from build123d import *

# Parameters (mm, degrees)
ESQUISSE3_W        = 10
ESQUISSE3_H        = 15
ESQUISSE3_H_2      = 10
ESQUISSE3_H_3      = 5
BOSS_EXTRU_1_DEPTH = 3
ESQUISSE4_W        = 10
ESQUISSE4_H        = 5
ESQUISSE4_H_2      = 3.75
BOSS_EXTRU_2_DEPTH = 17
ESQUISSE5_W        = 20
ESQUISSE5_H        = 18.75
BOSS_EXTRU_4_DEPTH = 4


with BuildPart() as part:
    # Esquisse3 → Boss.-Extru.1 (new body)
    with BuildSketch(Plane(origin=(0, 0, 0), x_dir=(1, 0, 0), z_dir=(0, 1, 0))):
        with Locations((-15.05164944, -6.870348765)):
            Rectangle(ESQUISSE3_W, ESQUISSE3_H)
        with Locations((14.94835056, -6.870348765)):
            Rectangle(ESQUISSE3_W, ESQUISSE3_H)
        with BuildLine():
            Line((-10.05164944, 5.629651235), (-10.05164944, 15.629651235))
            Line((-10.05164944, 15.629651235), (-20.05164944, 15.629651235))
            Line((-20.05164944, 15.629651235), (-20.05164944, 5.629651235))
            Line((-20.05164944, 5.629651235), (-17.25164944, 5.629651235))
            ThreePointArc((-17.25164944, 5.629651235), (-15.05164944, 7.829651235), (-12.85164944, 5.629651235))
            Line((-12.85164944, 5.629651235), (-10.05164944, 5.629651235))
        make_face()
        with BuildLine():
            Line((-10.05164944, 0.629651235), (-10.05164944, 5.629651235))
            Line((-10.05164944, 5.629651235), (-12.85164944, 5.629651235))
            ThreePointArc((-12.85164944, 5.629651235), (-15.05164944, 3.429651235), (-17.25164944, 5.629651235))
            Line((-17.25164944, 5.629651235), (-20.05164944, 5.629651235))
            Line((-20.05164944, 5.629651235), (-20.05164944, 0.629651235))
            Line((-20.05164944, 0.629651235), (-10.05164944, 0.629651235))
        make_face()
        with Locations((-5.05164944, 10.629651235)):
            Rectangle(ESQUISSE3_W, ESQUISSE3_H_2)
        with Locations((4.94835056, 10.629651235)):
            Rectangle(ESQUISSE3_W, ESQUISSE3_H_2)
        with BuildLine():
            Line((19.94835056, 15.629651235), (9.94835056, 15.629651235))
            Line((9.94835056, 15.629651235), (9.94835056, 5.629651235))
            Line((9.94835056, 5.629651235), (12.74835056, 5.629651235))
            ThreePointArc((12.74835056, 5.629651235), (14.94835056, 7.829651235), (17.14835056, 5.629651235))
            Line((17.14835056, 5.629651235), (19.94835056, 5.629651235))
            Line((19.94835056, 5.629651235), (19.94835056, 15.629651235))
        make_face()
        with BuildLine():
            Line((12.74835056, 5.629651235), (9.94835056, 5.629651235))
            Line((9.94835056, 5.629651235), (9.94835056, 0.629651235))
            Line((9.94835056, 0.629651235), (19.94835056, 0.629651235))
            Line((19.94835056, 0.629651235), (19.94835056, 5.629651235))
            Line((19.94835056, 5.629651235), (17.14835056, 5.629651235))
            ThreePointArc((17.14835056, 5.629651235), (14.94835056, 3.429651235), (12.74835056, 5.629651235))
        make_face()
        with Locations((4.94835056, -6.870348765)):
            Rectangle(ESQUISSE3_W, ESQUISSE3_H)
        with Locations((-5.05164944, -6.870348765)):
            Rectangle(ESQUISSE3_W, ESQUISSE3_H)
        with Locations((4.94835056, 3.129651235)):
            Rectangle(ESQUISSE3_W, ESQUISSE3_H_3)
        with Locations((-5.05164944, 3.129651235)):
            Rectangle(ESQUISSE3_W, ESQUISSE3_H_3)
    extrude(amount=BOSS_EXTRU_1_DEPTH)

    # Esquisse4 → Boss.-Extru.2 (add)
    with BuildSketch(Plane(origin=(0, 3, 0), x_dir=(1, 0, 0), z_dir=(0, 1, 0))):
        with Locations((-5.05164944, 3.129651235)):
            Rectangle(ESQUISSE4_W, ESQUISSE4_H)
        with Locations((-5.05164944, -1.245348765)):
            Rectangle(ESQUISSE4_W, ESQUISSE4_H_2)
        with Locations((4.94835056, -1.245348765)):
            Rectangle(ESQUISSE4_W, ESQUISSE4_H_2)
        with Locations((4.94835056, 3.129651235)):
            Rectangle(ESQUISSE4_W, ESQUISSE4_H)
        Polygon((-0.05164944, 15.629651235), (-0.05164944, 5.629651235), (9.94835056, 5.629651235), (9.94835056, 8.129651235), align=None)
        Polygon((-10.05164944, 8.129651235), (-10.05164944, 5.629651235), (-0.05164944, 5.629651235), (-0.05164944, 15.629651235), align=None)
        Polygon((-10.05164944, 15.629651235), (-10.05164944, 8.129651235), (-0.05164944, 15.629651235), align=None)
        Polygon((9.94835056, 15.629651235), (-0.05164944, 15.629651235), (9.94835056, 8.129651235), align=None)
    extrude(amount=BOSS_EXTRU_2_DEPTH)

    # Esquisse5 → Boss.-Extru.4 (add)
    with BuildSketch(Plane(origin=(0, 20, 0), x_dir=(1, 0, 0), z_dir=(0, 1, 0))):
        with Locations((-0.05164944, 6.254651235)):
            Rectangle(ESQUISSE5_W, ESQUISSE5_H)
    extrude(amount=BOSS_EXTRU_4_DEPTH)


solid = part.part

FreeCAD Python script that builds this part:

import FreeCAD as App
import Part
import Sketcher

V = App.Vector

doc = App.newDocument("Part")
body = doc.addObject("PartDesign::Body", "Body")

sketch1 = body.newObject("Sketcher::SketchObject", "Sketch")
sketch1.AttachmentSupport = (doc.getObject("XZ_Plane"), [""])
sketch1.MapMode = "FlatFace"
sketch1.addGeometry(Part.LineSegment(V(-20.1, 14.4, 0), V(19.9, 14.4, 0)), False)
sketch1.addGeometry(Part.LineSegment(V(19.9, 14.4, 0), V(19.9, -15.6, 0)), False)
sketch1.addGeometry(Part.LineSegment(V(19.9, -15.6, 0), V(-20.1, -15.6, 0)), False)
sketch1.addGeometry(Part.LineSegment(V(-20.1, -15.6, 0), V(-20.1, 14.4, 0)), False)
sketch1.addGeometry(Part.Circle(V(14.9, -5.6, 0), V(0, 0, 1), 2.2), False)
sketch1.addGeometry(Part.Circle(V(-15.1, -5.6, 0), V(0, 0, 1), 2.2), False)
sketch1.addConstraint(Sketcher.Constraint("Coincident", 0, 2, 1, 1))
sketch1.addConstraint(Sketcher.Constraint("Coincident", 1, 2, 2, 1))
sketch1.addConstraint(Sketcher.Constraint("Coincident", 2, 2, 3, 1))
sketch1.addConstraint(Sketcher.Constraint("Coincident", 3, 2, 0, 1))
sketch1.addConstraint(Sketcher.Constraint("Horizontal", 0))
sketch1.addConstraint(Sketcher.Constraint("Vertical", 1))
sketch1.addConstraint(Sketcher.Constraint("Horizontal", 2))
sketch1.addConstraint(Sketcher.Constraint("Vertical", 3))
sketch1.addConstraint(Sketcher.Constraint("Equal", 4, 5))
sketch1.addConstraint(Sketcher.Constraint("Horizontal", 4, 3, 5, 3))
sketch1.addConstraint(Sketcher.Constraint("Diameter", 4, 4.4))
sketch1.addConstraint(Sketcher.Constraint("DistanceX", 0, 1, 0, 2, 40.0))
sketch1.addConstraint(Sketcher.Constraint("DistanceY", 1, 2, 1, 1, 30.0))
sketch1.addConstraint(Sketcher.Constraint("DistanceX", 5, 3, 4, 3, 30.0))
sketch1.addConstraint(Sketcher.Constraint("DistanceX", 4, 3, 0, 2, 5.0))
sketch1.addConstraint(Sketcher.Constraint("DistanceY", 4, 3, 0, 2, 20.0))
sketch1.addConstraint(Sketcher.Constraint("DistanceX", -1, 1, 4, 3, 14.948351))
sketch1.addConstraint(Sketcher.Constraint("DistanceY", 4, 3, -1, 1, 5.629651))
pad1 = body.newObject("PartDesign::Pad", "Pad")
pad1.Profile = sketch1
pad1.Length = 3
pad1.Reversed = True

sketch2 = body.newObject("Sketcher::SketchObject", "Sketch001")
sketch2.AttachmentSupport = (doc.getObject("XZ_Plane"), [""])
sketch2.MapMode = "FlatFace"
sketch2.AttachmentOffset = App.Placement(V(0, 0, -3), App.Rotation())
sketch2.addGeometry(Part.LineSegment(V(-10, 3, 0), V(10, 3, 0)), False)
sketch2.addGeometry(Part.LineSegment(V(10, 3, 0), V(10, -16, 0)), False)
sketch2.addGeometry(Part.LineSegment(V(10, -16, 0), V(-10, -16, 0)), False)
sketch2.addGeometry(Part.LineSegment(V(-10, -16, 0), V(-10, 3, 0)), False)
sketch2.addConstraint(Sketcher.Constraint("Coincident", 0, 2, 1, 1))
sketch2.addConstraint(Sketcher.Constraint("Coincident", 1, 2, 2, 1))
sketch2.addConstraint(Sketcher.Constraint("Coincident", 2, 2, 3, 1))
sketch2.addConstraint(Sketcher.Constraint("Coincident", 3, 2, 0, 1))
sketch2.addConstraint(Sketcher.Constraint("Horizontal", 0))
sketch2.addConstraint(Sketcher.Constraint("Vertical", 1))
sketch2.addConstraint(Sketcher.Constraint("Horizontal", 2))
sketch2.addConstraint(Sketcher.Constraint("Vertical", 3))
sketch2.addConstraint(Sketcher.Constraint("DistanceX", 0, 1, 0, 2, 20.0))
sketch2.addConstraint(Sketcher.Constraint("DistanceY", 1, 2, 1, 1, 18.75))
sketch2.addConstraint(Sketcher.Constraint("DistanceX", -1, 1, 0, 2, 9.948351))
sketch2.addConstraint(Sketcher.Constraint("DistanceY", -1, 1, 0, 2, 3.120349))
pad2 = body.newObject("PartDesign::Pad", "Pad001")
pad2.Profile = sketch2
pad2.Length = 17
pad2.Reversed = True

sketch3 = body.newObject("Sketcher::SketchObject", "Sketch002")
sketch3.AttachmentSupport = (doc.getObject("XZ_Plane"), [""])
sketch3.MapMode = "FlatFace"
sketch3.AttachmentOffset = App.Placement(V(0, 0, -20), App.Rotation())
sketch3.addGeometry(Part.LineSegment(V(-10, -16, 0), V(-10, 3, 0)), False)
sketch3.addGeometry(Part.LineSegment(V(-10, 3, 0), V(10, 3, 0)), False)
sketch3.addGeometry(Part.LineSegment(V(10, 3, 0), V(10, -16, 0)), False)
sketch3.addGeometry(Part.LineSegment(V(10, -16, 0), V(-10, -16, 0)), False)
sketch3.addConstraint(Sketcher.Constraint("Coincident", 0, 2, 1, 1))
sketch3.addConstraint(Sketcher.Constraint("Coincident", 1, 2, 2, 1))
sketch3.addConstraint(Sketcher.Constraint("Coincident", 2, 2, 3, 1))
sketch3.addConstraint(Sketcher.Constraint("Coincident", 3, 2, 0, 1))
sketch3.addConstraint(Sketcher.Constraint("Vertical", 0))
sketch3.addConstraint(Sketcher.Constraint("Horizontal", 1))
sketch3.addConstraint(Sketcher.Constraint("Vertical", 2))
sketch3.addConstraint(Sketcher.Constraint("Horizontal", 3))
sketch3.addConstraint(Sketcher.Constraint("DistanceX", 1, 1, 1, 2, 20.0))
sketch3.addConstraint(Sketcher.Constraint("DistanceY", 0, 1, 0, 2, 18.75))
sketch3.addConstraint(Sketcher.Constraint("DistanceX", 0, 2, -1, 1, 10.051649))
sketch3.addConstraint(Sketcher.Constraint("DistanceY", -1, 1, 0, 2, 3.120349))
pad3 = body.newObject("PartDesign::Pad", "Pad002")
pad3.Profile = sketch3
pad3.Length = 4
pad3.Reversed = True

doc.recompute()
